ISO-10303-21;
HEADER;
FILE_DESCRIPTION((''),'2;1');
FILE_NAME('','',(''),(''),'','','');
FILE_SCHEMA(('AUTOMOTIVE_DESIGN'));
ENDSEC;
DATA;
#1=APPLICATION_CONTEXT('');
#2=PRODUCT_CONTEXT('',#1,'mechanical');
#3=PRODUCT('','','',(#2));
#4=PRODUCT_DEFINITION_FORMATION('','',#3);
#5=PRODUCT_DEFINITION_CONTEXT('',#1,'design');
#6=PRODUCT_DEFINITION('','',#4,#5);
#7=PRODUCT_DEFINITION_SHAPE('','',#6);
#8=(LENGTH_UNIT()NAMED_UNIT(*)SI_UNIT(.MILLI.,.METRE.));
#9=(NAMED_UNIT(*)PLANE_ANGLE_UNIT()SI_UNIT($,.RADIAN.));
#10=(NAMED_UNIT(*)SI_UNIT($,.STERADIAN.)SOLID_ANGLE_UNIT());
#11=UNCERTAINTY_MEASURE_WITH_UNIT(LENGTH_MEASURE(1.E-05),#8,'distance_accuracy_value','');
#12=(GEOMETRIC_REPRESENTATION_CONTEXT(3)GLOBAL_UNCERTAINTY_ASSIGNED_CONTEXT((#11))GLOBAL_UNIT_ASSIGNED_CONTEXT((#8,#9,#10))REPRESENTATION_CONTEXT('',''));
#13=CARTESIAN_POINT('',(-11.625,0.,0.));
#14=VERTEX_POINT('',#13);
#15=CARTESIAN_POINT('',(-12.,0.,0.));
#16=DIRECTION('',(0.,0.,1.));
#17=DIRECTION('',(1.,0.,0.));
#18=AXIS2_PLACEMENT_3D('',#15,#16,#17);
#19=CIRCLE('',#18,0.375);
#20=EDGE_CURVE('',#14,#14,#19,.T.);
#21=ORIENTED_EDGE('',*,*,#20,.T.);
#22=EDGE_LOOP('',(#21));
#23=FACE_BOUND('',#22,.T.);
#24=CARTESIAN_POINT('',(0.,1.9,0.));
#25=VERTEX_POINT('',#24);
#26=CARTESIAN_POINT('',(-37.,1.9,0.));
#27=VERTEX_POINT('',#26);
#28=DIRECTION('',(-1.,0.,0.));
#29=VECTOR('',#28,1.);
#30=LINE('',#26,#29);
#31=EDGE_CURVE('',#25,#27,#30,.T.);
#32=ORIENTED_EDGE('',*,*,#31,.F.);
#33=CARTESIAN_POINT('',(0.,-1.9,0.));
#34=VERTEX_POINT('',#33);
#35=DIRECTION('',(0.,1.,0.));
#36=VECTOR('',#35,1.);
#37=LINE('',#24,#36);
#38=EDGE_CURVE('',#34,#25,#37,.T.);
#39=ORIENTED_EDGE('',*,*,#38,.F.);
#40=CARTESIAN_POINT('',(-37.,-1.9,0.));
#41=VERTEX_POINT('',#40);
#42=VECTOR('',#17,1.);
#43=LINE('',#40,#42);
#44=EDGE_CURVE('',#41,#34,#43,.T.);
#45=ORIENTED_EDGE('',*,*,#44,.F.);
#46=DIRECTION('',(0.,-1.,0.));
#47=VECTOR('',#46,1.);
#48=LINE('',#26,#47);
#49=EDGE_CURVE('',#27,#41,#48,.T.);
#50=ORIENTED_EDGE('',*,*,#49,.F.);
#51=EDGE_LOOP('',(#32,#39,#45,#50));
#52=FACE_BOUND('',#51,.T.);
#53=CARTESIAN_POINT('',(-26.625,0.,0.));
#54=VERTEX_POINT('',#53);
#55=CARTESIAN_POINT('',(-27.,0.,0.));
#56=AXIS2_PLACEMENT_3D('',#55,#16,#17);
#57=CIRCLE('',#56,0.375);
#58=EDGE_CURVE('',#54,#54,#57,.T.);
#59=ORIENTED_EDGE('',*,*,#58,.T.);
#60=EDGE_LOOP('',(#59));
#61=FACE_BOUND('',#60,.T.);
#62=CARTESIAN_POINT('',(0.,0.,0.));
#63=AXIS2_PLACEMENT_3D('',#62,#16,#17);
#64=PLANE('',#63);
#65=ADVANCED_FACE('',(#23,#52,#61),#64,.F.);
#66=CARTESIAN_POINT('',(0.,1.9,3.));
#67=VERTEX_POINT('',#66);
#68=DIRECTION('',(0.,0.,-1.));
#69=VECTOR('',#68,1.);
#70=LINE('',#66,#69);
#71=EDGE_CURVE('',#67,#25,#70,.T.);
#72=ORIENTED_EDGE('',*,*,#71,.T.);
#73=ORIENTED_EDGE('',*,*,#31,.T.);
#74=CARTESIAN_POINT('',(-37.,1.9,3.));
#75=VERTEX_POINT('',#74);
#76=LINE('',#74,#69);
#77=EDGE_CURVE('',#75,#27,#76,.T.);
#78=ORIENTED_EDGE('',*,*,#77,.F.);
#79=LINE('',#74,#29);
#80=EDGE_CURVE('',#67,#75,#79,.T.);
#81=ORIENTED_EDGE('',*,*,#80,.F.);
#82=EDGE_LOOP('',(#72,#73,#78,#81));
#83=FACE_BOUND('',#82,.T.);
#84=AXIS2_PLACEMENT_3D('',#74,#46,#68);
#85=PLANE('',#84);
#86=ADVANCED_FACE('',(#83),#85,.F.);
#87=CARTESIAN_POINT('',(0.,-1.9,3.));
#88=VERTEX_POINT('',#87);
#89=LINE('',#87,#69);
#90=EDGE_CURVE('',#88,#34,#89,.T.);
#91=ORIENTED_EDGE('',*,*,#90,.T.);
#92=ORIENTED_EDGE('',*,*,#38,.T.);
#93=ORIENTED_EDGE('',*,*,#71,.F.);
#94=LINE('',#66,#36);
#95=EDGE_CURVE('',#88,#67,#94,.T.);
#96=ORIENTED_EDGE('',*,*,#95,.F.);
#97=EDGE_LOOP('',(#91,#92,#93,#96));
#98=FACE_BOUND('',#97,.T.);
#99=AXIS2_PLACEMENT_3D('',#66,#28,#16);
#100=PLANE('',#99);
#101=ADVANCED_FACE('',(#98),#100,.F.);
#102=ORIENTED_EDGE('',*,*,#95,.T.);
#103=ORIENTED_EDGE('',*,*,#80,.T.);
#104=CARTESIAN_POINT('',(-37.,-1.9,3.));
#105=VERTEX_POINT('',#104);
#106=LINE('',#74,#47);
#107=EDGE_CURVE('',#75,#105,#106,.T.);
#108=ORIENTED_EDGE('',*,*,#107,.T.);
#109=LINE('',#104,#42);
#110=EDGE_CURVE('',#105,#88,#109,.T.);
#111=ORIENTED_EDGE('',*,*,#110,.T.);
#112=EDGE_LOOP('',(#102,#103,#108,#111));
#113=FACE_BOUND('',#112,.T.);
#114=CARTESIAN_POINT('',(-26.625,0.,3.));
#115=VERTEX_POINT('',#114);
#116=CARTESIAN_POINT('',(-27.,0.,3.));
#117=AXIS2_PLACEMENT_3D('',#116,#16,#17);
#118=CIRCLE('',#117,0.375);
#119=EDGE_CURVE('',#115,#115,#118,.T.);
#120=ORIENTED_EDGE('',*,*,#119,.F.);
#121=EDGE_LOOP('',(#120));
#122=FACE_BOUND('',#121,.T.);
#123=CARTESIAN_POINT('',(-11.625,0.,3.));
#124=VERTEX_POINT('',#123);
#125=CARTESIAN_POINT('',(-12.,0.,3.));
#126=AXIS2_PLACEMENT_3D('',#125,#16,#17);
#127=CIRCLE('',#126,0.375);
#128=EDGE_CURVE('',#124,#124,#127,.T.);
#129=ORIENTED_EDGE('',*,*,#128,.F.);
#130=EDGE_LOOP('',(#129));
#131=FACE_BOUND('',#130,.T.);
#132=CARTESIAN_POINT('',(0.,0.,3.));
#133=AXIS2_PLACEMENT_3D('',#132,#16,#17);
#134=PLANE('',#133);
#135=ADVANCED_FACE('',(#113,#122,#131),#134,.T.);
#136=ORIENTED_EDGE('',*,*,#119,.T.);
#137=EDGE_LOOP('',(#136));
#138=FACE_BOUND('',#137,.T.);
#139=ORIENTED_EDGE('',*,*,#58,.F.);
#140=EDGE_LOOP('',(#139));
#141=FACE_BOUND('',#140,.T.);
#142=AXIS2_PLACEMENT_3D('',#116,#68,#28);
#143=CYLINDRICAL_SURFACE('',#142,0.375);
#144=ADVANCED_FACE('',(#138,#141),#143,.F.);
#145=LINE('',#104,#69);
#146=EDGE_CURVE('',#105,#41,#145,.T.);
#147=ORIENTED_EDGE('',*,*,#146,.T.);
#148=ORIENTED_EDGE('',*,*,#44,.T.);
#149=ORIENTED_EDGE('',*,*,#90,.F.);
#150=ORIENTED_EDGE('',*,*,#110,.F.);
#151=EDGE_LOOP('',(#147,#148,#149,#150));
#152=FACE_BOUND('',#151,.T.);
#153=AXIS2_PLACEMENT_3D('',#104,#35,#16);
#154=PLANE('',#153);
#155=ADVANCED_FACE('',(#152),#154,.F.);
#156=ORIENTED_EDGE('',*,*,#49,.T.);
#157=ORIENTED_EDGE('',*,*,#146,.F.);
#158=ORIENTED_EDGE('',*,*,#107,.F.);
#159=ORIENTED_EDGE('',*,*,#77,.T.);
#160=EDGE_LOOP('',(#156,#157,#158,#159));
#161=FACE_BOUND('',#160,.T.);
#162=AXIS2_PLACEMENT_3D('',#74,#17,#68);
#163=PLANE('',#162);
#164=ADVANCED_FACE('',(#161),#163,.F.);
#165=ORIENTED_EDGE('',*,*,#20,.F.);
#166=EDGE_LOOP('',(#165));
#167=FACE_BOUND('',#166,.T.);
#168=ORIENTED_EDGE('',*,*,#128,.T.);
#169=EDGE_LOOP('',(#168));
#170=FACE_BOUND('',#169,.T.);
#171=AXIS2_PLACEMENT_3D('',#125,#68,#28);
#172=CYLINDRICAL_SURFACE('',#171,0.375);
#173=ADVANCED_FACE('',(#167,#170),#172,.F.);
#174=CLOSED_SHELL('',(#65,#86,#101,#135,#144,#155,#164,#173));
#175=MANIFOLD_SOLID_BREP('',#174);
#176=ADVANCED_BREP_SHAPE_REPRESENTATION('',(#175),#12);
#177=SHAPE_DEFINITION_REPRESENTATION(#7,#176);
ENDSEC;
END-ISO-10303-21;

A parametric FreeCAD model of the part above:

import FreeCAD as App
import Part
import Sketcher
from FreeCAD import Vector
Q = App.Units.Quantity

doc = App.newDocument("Part")
body = doc.addObject("PartDesign::Body", "Body")

# Sketch on XY plane
sketch1 = body.newObject("Sketcher::SketchObject", "Sketch")
sketch1.AttachmentSupport = (doc.getObject("XY_Plane"), [""])
sketch1.MapMode = "FlatFace"
sketch1.addGeometry([
    Part.LineSegment(Vector(-37, 1.9, 0), Vector(-37, -1.9, 0)),  # 0
    Part.LineSegment(Vector(-37, -1.9, 0), Vector(0, -1.9, 0)),  # 1
    Part.LineSegment(Vector(0, -1.9, 0), Vector(0, 1.9, 0)),  # 2
    Part.LineSegment(Vector(0, 1.9, 0), Vector(-37, 1.9, 0)),  # 3
    Part.Circle(Vector(-27, 0, 0), Vector(0, 0, 1), 0.375),  # 4
    Part.Circle(Vector(-12, 0, 0), Vector(0, 0, 1), 0.375),  # 5
], False)
sketch1.addConstraint([
    Sketcher.Constraint("Coincident", 0, 2, 1, 1),
    Sketcher.Constraint("Coincident", 1, 2, 2, 1),
    Sketcher.Constraint("Coincident", 2, 2, 3, 1),
    Sketcher.Constraint("Coincident", 3, 2, 0, 1),
    Sketcher.Constraint("Vertical", 0),
    Sketcher.Constraint("Horizontal", 1),
    Sketcher.Constraint("Vertical", 2),
    Sketcher.Constraint("Horizontal", 3),
    Sketcher.Constraint("Equal", 4, 5),
    Sketcher.Constraint("Symmetric", 1, 2, 2, 2, -1, 1),
    Sketcher.Constraint("PointOnObject", 4, 3, -1),
    Sketcher.Constraint("PointOnObject", 5, 3, -1),
    Sketcher.Constraint("Diameter", 4, Q("0.75 mm")),
    Sketcher.Constraint("DistanceX", 1, 1, 1, 2, Q("37 mm")),
    Sketcher.Constraint("DistanceY", 0, 2, 0, 1, Q("3.8 mm")),
    Sketcher.Constraint("DistanceX", 4, 3, -1, 1, Q("27 mm")),
    Sketcher.Constraint("DistanceX", 5, 3, -1, 1, Q("12 mm")),
])
pad1 = body.newObject("PartDesign::Pad", "Pad")
pad1.Profile = sketch1
pad1.Length = 3

doc.recompute()
